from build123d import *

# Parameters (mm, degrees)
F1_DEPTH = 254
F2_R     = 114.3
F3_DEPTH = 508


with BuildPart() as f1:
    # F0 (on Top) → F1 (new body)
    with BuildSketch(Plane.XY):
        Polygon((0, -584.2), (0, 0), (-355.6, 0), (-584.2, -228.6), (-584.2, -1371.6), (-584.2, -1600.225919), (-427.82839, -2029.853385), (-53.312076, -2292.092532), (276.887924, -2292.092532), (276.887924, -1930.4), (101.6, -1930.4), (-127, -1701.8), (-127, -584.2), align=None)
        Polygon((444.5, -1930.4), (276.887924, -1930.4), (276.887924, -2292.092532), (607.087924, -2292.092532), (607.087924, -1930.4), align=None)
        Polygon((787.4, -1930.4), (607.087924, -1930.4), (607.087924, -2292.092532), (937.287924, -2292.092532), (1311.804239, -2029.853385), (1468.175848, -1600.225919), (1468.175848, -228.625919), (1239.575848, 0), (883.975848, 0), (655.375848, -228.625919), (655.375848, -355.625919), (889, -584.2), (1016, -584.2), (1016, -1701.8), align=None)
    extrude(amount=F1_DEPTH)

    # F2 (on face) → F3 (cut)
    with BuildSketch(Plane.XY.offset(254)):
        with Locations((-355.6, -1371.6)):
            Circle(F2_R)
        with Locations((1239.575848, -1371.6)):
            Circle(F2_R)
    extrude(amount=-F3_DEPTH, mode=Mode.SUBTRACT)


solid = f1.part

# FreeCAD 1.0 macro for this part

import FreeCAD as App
import Part
import Sketcher
Q = App.Units.Quantity

doc = App.newDocument("Part")
body = doc.addObject("PartDesign::Body", "Body")

# Sketch on XY plane
sketch1 = doc.addObject("Sketcher::SketchObject", "Sketch")
body.addObject(sketch1)
sketch1.AttachmentSupport = (doc.XY_Plane, [""])
sketch1.MapMode = "FlatFace"
sketch1.addGeometry(Part.LineSegment(App.Vector(0, -584, 0), App.Vector(0, 0, 0)), False)
sketch1.addGeometry(Part.LineSegment(App.Vector(0, 0, 0), App.Vector(-356, 0, 0)), False)
sketch1.addGeometry(Part.LineSegment(App.Vector(-356, 0, 0), App.Vector(-584, -229, 0)), False)
sketch1.addGeometry(Part.LineSegment(App.Vector(-584, -229, 0), App.Vector(-584, -1600, 0)), False)
sketch1.addGeometry(Part.LineSegment(App.Vector(-584, -1600, 0), App.Vector(-428, -2030, 0)), False)
sketch1.addGeometry(Part.LineSegment(App.Vector(-428, -2030, 0), App.Vector(-53, -2292, 0)), False)
sketch1.addGeometry(Part.LineSegment(App.Vector(-53, -2292, 0), App.Vector(937, -2292, 0)), False)
sketch1.addGeometry(Part.LineSegment(App.Vector(937, -2292, 0), App.Vector(1312, -2030, 0)), False)
sketch1.addGeometry(Part.LineSegment(App.Vector(1312, -2030, 0), App.Vector(1468, -1600, 0)), False)
sketch1.addGeometry(Part.LineSegment(App.Vector(1468, -1600, 0), App.Vector(1468, -229, 0)), False)
sketch1.addGeometry(Part.LineSegment(App.Vector(1468, -229, 0), App.Vector(1240, 0, 0)), False)
sketch1.addGeometry(Part.LineSegment(App.Vector(1240, 0, 0), App.Vector(884, 0, 0)), False)
sketch1.addGeometry(Part.LineSegment(App.Vector(884, 0, 0), App.Vector(655, -229, 0)), False)
sketch1.addGeometry(Part.LineSegment(App.Vector(655, -229, 0), App.Vector(655, -356, 0)), False)
sketch1.addGeometry(Part.LineSegment(App.Vector(655, -356, 0), App.Vector(889, -584, 0)), False)
sketch1.addGeometry(Part.LineSegment(App.Vector(889, -584, 0), App.Vector(1016, -584, 0)), False)
sketch1.addGeometry(Part.LineSegment(App.Vector(1016, -584, 0), App.Vector(1016, -1702, 0)), False)
sketch1.addGeometry(Part.LineSegment(App.Vector(1016, -1702, 0), App.Vector(787, -1930, 0)), False)
sketch1.addGeometry(Part.LineSegment(App.Vector(787, -1930, 0), App.Vector(102, -1930, 0)), False)
sketch1.addGeometry(Part.LineSegment(App.Vector(102, -1930, 0), App.Vector(-127, -1702, 0)), False)
sketch1.addGeometry(Part.LineSegment(App.Vector(-127, -1702, 0), App.Vector(-127, -584, 0)), False)
sketch1.addGeometry(Part.LineSegment(App.Vector(-127, -584, 0), App.Vector(0, -584, 0)), False)
sketch1.addConstraint(Sketcher.Constraint("Coincident", 0, 2, 1, 1))
sketch1.addConstraint(Sketcher.Constraint("Coincident", 1, 2, 2, 1))
sketch1.addConstraint(Sketcher.Constraint("Coincident", 2, 2, 3, 1))
sketch1.addConstraint(Sketcher.Constraint("Coincident", 3, 2, 4, 1))
sketch1.addConstraint(Sketcher.Constraint("Coincident", 4, 2, 5, 1))
sketch1.addConstraint(Sketcher.Constraint("Coincident", 5, 2, 6, 1))
sketch1.addConstraint(Sketcher.Constraint("Coincident", 6, 2, 7, 1))
sketch1.addConstraint(Sketcher.Constraint("Coincident", 7, 2, 8, 1))
sketch1.addConstraint(Sketcher.Constraint("Coincident", 8, 2, 9, 1))
sketch1.addConstraint(Sketcher.Constraint("Coincident", 9, 2, 10, 1))
sketch1.addConstraint(Sketcher.Constraint("Coincident", 10, 2, 11, 1))
sketch1.addConstraint(Sketcher.Constraint("Coincident", 11, 2, 12, 1))
sketch1.addConstraint(Sketcher.Constraint("Coincident", 12, 2, 13, 1))
sketch1.addConstraint(Sketcher.Constraint("Coincident", 13, 2, 14, 1))
sketch1.addConstraint(Sketcher.Constraint("Coincident", 14, 2, 15, 1))
sketch1.addConstraint(Sketcher.Constraint("Coincident", 15, 2, 16, 1))
sketch1.addConstraint(Sketcher.Constraint("Coincident", 16, 2, 17, 1))
sketch1.addConstraint(Sketcher.Constraint("Coincident", 17, 2, 18, 1))
sketch1.addConstraint(Sketcher.Constraint("Coincident", 18, 2, 19, 1))
sketch1.addConstraint(Sketcher.Constraint("Coincident", 19, 2, 20, 1))
sketch1.addConstraint(Sketcher.Constraint("Coincident", 20, 2, 21, 1))
sketch1.addConstraint(Sketcher.Constraint("Coincident", 21, 2, 0, 1))
sketch1.addConstraint(Sketcher.Constraint("Vertical", 0))
sketch1.addConstraint(Sketcher.Constraint("Horizontal", 1))
sketch1.addConstraint(Sketcher.Constraint("Vertical", 3))
sketch1.addConstraint(Sketcher.Constraint("Horizontal", 6))
sketch1.addConstraint(Sketcher.Constraint("Vertical", 9))
sketch1.addConstraint(Sketcher.Constraint("Horizontal", 11))
sketch1.addConstraint(Sketcher.Constraint("Vertical", 13))
sketch1.addConstraint(Sketcher.Constraint("Horizontal", 15))
sketch1.addConstraint(Sketcher.Constraint("Vertical", 16))
sketch1.addConstraint(Sketcher.Constraint("Horizontal", 18))
sketch1.addConstraint(Sketcher.Constraint("Vertical", 20))
sketch1.addConstraint(Sketcher.Constraint("Horizontal", 21))
sketch1.addConstraint(Sketcher.Constraint("Coincident", 0, 2, -1, 1))
sketch1.addConstraint(Sketcher.Constraint("PointOnObject", 10, 2, -1))
sketch1.addConstraint(Sketcher.Constraint("Parallel", 2, 17))
sketch1.addConstraint(Sketcher.Constraint("Perpendicular", 17, 19))
sketch1.addConstraint(Sketcher.Constraint("Horizontal", 4, 2, 7, 2))
sketch1.addConstraint(Sketcher.Constraint("Horizontal", 3, 2, 8, 2))
sketch1.addConstraint(Sketcher.Constraint("Horizontal", 9, 2, 12, 2))
sketch1.addConstraint(Sketcher.Constraint("Horizontal", 16, 2, 19, 2))
sketch1.addConstraint(Sketcher.Constraint("Horizontal", 15, 2, 20, 2))
sketch1.addConstraint(Sketcher.Constraint("Equal", 1, 11))
sketch1.addConstraint(Sketcher.Constraint("Equal", 15, 21))
sketch1.addConstraint(Sketcher.Constraint("Equal", 21, 13))
sketch1.addConstraint(Sketcher.Constraint("Equal", 4, 5))
sketch1.addConstraint(Sketcher.Constraint("Equal", 5, 7))
sketch1.addConstraint(Sketcher.Constraint("Equal", 7, 8))
sketch1.addConstraint(Sketcher.Constraint("Equal", 10, 12))
sketch1.addConstraint(Sketcher.Constraint("Equal", 2, 17))
sketch1.addConstraint(Sketcher.Constraint("Equal", 17, 19))
sketch1.addConstraint(Sketcher.Constraint("DistanceX", 1, 2, 1, 1, Q("14 in")))
sketch1.addConstraint(Sketcher.Constraint("DistanceX", 6, 1, 6, 2, Q("39 in")))
sketch1.addConstraint(Sketcher.Constraint("DistanceX", 15, 1, 15, 2, Q("5 in")))
sketch1.addConstraint(Sketcher.Constraint("DistanceX", 18, 2, 18, 1, Q("27 in")))
sketch1.addConstraint(Sketcher.Constraint("DistanceY", 0, 1, 0, 2, Q("23 in")))
sketch1.addConstraint(Sketcher.Constraint("DistanceY", 9, 1, 9, 2, Q("54 in")))
sketch1.addConstraint(Sketcher.Constraint("DistanceY", 16, 2, 16, 1, Q("44 in")))
sketch1.addConstraint(Sketcher.Constraint("Distance", 4, Q("18 in")))
sketch1.addConstraint(Sketcher.Constraint("DistanceX", 2, 2, -1, 1, Q("23 in")))
sketch1.addConstraint(Sketcher.Constraint("Angle", 4, Q("-70 deg")))
sketch1.addConstraint(Sketcher.Constraint("Angle", 5, Q("-35 deg")))
sketch1.addConstraint(Sketcher.Constraint("DistanceX", 10, 2, 9, 2, Q("9 in")))
sketch1.addConstraint(Sketcher.Constraint("DistanceY", 3, 2, 3, 1, Q("1371.625919 mm")))
pad1 = doc.addObject("PartDesign::Pad", "Pad")
body.addObject(pad1)
pad1.Profile = sketch1
pad1.Length = Q("10 in")

# Sketch on XY plane
sketch2 = doc.addObject("Sketcher::SketchObject", "Sketch001")
body.addObject(sketch2)
sketch2.AttachmentSupport = (doc.XY_Plane, [""])
sketch2.MapMode = "FlatFace"
sketch2.AttachmentOffset = App.Placement(App.Vector(0, 0, 10 * 25.4), App.Rotation())
sketch2.addGeometry(Part.Circle(App.Vector(-356, -1372, 0), App.Vector(0, 0, 1), 114), False)
sketch2.addGeometry(Part.Circle(App.Vector(1240, -1372, 0), App.Vector(0, 0, 1), 114), False)
sketch2.addConstraint(Sketcher.Constraint("Equal", 0, 1))
sketch2.addConstraint(Sketcher.Constraint("Horizontal", 0, 3, 1, 3))
sketch2.addConstraint(Sketcher.Constraint("Diameter", 0, Q("9 in")))
sketch2.addConstraint(Sketcher.Constraint("DistanceX", 0, 3, -1, 1, Q("14 in")))
sketch2.addConstraint(Sketcher.Constraint("DistanceY", 0, 3, -1, 1, Q("54 in")))
sketch2.addConstraint(Sketcher.Constraint("DistanceX", -1, 1, 1, 3, Q("1239.575848 mm")))
pocket1 = doc.addObject("PartDesign::Pocket", "Pocket")
body.addObject(pocket1)
pocket1.Profile = sketch2
pocket1.Length = Q("20 in")

doc.recompute()
